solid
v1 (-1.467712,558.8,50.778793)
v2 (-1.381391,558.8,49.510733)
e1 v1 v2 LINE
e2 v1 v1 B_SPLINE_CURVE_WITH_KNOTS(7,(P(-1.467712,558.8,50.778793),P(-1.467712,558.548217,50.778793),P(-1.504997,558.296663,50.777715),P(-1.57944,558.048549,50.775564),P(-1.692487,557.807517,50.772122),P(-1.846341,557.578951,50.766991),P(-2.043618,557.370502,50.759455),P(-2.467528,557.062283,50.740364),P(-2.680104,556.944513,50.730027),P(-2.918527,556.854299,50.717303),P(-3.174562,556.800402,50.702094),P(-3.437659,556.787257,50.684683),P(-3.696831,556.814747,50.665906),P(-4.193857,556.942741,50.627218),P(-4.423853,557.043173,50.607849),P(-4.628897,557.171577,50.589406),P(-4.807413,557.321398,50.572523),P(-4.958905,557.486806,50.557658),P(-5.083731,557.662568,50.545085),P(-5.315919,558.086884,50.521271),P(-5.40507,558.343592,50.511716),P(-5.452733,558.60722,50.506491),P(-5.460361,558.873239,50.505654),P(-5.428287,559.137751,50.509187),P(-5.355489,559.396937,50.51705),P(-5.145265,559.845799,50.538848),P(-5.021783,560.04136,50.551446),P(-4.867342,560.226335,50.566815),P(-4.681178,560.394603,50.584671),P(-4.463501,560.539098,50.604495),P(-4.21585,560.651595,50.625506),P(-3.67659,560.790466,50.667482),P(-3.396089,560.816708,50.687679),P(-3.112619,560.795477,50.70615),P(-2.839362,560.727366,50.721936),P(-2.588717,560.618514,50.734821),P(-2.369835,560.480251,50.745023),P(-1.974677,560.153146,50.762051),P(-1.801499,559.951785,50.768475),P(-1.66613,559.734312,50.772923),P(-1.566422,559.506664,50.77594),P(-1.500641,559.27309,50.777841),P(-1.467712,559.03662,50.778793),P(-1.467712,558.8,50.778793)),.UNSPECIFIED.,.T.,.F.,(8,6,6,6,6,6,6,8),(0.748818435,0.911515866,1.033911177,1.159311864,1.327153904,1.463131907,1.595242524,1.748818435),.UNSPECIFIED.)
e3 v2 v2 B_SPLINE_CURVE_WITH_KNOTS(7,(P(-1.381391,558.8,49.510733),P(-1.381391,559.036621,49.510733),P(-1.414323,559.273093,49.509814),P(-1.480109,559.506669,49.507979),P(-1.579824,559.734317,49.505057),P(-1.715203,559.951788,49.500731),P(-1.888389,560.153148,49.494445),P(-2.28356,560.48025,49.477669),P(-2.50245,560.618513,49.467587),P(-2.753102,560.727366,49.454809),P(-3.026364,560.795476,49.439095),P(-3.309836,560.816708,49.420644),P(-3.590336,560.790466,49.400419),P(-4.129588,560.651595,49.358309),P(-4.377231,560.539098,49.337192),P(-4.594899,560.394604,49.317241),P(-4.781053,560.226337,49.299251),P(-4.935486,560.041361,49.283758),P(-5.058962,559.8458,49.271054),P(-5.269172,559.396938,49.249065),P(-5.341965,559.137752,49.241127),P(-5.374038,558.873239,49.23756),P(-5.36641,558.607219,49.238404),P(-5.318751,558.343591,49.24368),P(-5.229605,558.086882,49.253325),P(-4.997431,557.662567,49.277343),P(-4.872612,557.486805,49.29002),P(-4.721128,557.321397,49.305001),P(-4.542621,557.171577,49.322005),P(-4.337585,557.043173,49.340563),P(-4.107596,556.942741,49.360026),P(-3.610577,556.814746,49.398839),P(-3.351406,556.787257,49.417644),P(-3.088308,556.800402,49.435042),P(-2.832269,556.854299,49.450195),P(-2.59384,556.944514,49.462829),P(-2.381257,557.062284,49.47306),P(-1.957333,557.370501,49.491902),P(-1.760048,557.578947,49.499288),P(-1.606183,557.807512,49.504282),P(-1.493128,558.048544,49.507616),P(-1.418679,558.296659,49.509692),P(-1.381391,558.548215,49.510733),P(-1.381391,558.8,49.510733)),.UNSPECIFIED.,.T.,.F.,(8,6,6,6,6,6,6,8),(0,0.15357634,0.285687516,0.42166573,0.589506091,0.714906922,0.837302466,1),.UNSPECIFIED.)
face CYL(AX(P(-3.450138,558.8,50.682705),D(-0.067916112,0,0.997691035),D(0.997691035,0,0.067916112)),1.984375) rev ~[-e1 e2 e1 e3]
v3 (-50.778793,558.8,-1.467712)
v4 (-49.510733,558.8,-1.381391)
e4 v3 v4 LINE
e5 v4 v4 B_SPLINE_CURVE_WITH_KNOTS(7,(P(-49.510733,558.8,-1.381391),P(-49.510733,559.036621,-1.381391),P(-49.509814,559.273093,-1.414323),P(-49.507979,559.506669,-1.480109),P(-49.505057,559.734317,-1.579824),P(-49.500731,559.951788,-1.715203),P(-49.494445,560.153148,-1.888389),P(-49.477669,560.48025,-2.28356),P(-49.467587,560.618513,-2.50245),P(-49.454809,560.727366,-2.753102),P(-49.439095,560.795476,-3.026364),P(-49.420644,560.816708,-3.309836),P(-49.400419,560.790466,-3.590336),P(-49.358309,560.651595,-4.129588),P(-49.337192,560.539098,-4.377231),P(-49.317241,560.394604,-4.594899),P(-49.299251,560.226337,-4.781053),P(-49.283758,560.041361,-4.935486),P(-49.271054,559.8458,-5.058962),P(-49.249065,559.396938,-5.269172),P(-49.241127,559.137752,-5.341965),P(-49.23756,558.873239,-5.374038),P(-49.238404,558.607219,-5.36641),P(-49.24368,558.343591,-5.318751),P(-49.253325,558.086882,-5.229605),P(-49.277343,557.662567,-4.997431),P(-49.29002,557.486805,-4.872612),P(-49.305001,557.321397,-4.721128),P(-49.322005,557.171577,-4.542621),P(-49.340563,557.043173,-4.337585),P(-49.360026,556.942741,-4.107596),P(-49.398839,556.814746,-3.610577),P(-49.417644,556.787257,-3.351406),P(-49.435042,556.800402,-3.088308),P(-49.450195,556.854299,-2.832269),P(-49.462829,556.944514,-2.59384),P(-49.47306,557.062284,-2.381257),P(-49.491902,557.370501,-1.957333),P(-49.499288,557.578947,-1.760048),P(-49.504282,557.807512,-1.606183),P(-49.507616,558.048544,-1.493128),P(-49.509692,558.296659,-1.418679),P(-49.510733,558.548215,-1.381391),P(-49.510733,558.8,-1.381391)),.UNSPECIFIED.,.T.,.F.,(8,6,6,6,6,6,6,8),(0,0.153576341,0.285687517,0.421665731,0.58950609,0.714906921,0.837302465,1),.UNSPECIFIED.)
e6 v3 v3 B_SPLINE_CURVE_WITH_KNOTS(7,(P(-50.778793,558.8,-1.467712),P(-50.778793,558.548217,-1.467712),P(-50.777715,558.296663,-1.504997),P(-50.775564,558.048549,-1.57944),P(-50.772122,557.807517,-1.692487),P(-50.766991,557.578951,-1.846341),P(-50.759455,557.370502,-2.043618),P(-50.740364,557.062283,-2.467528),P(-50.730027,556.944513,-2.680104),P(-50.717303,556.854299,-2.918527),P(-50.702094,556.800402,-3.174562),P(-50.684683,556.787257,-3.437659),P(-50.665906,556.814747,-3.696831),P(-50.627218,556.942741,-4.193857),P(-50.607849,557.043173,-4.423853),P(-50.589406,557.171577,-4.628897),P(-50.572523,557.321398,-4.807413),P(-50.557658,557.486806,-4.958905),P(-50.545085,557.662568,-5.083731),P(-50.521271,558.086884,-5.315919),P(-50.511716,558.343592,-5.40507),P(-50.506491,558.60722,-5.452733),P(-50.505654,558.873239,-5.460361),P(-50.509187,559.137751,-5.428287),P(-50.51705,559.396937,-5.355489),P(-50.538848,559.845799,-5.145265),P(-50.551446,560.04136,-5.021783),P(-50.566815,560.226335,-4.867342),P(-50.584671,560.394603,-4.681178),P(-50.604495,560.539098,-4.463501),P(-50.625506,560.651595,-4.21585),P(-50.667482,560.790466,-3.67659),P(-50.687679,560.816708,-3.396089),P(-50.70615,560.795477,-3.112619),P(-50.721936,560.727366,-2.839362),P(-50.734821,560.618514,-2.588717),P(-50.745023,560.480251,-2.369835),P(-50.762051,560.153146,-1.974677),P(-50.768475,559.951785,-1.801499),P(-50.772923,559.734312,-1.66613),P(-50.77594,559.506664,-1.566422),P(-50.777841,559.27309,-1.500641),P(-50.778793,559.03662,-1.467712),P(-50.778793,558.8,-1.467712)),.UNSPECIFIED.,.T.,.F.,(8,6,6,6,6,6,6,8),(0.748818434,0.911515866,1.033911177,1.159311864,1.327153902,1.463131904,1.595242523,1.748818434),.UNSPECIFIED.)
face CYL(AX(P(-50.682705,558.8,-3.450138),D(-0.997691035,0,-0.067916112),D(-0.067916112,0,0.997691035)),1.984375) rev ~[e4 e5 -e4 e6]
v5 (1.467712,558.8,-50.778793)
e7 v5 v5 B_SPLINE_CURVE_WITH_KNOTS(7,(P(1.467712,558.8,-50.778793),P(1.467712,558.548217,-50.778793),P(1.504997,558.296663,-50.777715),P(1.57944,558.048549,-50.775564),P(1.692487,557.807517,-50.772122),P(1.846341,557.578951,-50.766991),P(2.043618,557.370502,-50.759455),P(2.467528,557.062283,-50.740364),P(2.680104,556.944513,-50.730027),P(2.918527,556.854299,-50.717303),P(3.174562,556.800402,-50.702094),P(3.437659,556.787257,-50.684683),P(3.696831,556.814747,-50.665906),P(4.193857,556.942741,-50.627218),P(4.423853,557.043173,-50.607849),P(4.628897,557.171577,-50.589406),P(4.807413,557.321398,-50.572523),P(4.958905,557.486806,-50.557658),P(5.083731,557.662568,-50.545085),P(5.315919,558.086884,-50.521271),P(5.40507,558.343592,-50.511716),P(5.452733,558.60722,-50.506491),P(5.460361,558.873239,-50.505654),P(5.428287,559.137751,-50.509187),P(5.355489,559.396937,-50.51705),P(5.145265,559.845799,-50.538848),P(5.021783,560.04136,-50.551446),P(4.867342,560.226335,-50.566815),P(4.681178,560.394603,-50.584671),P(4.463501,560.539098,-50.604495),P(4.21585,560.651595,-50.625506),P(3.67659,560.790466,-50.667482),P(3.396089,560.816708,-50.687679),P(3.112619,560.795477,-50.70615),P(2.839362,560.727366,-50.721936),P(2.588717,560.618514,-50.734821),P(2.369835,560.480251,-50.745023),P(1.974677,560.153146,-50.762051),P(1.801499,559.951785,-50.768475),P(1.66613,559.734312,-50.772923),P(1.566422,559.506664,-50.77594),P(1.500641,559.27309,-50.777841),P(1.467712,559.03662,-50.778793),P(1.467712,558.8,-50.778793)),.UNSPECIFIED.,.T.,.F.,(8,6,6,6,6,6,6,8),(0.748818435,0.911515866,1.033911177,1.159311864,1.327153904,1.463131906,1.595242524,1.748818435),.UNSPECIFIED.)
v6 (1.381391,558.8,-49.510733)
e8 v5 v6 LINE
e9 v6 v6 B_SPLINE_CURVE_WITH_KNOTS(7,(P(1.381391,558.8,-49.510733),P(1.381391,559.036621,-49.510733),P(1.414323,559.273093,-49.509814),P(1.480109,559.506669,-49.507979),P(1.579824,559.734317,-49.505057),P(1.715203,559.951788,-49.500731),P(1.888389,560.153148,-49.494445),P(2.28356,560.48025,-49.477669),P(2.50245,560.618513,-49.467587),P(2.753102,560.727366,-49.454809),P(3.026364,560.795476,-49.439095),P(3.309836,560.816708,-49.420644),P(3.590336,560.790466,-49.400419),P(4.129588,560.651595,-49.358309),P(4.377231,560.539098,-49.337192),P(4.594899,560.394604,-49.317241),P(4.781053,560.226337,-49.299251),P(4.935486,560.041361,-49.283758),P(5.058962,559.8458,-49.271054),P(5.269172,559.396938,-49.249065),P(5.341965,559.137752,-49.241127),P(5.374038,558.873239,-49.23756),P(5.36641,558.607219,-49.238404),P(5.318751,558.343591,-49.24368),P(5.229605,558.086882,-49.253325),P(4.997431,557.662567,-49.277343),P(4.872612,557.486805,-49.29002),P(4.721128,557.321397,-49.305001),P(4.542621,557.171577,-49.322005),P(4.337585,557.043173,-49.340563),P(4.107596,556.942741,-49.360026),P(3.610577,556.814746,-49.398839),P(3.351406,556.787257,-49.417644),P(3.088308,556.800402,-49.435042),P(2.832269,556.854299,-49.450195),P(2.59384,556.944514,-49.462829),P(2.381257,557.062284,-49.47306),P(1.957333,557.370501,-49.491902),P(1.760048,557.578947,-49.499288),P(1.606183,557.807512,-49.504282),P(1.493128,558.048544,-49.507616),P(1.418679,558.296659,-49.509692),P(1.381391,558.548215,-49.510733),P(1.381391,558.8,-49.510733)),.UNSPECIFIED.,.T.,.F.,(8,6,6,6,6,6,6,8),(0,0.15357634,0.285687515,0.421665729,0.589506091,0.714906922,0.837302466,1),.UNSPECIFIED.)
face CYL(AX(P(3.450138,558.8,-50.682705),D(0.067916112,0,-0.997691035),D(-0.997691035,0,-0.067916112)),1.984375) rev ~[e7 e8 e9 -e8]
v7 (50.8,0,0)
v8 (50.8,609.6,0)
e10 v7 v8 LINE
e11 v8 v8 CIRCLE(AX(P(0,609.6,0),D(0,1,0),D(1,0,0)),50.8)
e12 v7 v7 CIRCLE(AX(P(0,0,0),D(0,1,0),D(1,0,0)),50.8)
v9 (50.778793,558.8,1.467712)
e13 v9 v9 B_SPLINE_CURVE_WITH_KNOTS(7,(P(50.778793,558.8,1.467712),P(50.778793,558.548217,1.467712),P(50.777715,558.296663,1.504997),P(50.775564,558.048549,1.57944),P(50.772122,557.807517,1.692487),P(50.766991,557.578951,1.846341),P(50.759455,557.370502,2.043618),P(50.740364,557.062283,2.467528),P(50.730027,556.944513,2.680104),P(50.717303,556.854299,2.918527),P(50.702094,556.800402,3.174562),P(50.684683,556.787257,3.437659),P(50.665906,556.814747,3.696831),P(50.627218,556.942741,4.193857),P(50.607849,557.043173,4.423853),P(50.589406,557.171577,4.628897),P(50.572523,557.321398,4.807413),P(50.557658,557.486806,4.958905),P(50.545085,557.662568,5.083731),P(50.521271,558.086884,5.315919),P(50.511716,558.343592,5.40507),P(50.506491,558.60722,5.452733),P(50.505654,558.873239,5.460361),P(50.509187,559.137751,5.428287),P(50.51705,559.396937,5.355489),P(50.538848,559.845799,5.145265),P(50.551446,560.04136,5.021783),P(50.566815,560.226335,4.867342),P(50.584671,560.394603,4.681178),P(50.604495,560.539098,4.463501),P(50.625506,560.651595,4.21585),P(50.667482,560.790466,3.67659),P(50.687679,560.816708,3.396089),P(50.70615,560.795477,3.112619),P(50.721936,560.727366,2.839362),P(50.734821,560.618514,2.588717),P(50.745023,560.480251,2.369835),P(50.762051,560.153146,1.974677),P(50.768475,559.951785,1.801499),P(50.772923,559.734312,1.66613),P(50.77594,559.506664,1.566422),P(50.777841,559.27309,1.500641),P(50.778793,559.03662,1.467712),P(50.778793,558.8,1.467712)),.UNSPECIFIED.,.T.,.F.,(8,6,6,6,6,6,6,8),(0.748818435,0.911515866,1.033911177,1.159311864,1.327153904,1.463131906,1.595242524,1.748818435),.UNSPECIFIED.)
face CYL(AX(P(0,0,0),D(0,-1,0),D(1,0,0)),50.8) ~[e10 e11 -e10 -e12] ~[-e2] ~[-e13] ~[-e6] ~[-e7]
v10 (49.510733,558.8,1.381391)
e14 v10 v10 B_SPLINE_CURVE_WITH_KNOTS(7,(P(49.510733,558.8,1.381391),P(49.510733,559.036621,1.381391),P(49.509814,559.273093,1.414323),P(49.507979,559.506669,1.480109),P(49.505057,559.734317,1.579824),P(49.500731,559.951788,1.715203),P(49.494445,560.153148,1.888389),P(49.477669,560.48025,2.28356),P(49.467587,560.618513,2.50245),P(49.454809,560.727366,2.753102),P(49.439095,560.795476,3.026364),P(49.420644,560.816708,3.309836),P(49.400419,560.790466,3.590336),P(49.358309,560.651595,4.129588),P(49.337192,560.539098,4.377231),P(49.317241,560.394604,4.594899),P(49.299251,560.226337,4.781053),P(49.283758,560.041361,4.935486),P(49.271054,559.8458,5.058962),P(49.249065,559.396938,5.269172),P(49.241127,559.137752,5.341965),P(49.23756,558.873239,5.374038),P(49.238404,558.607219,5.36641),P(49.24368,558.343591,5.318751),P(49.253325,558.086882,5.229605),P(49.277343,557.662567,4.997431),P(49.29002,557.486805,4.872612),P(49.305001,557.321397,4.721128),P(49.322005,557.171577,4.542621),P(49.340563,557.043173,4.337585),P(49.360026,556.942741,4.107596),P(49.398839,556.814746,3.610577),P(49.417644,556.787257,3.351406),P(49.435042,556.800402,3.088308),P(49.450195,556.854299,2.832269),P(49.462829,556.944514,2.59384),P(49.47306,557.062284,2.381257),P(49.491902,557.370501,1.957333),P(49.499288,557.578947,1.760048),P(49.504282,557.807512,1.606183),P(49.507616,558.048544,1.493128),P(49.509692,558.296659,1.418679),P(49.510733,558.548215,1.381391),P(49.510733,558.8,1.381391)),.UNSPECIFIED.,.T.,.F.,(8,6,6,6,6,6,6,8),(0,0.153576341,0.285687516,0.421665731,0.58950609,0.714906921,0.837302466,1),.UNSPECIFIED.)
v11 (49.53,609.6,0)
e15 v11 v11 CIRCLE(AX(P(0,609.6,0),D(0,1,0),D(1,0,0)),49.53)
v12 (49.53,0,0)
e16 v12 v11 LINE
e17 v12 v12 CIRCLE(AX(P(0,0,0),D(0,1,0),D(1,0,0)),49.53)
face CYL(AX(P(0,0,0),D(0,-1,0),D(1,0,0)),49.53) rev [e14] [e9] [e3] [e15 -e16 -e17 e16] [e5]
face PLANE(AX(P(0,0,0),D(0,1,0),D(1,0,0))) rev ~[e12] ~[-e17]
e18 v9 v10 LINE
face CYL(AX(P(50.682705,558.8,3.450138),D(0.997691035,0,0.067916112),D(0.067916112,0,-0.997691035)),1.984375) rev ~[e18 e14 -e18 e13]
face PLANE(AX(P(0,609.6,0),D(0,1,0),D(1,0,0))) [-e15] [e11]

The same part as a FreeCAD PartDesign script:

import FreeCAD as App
import Part
import Sketcher
Q = App.Units.Quantity

doc = App.newDocument("Part")
body = doc.addObject("PartDesign::Body", "Body")

# Sketch on XZ plane
sketch1 = body.newObject("Sketcher::SketchObject", "Sketch")
sketch1.AttachmentSupport = (doc.getObject("XZ_Plane"), [""])
sketch1.MapMode = "FlatFace"
sketch1.addGeometry([
    Part.Circle(App.Vector(0, 0, 0), App.Vector(0, 0, 1), 50.8),
    Part.Circle(App.Vector(0, 0, 0), App.Vector(0, 0, 1), 49.53),
], False)
sketch1.addConstraint([
    Sketcher.Constraint("Coincident", 0, 3, -1, 1),
    Sketcher.Constraint("Coincident", 1, 3, -1, 1),
    Sketcher.Constraint("Diameter", 0, Q("4 in")),
    Sketcher.Constraint("Diameter", 1, Q("3.9 in")),
])
pad1 = body.newObject("PartDesign::Pad", "Pad")
pad1.Profile = sketch1
pad1.Length = Q("24 in")
pad1.Reversed = True

# Sketch on an angled plane
sketch2 = body.newObject("Sketcher::SketchObject", "Sketch001")
sketch2.Placement = App.Placement(App.Vector(122.899951, 815.595372, -42.551363), App.Rotation(App.Vector(-0.997691035, 0, -0.067916112), App.Vector(0, 1, 0), App.Vector(0.067916112, 0, -0.997691035), "ZXY"))
sketch2.addGeometry(Part.Circle(App.Vector(119.726256, -256.795371, 0), App.Vector(0, 0, 1), 1.984375), False)
sketch2.addConstraint([
    Sketcher.Constraint("Diameter", 0, Q("0.15625 in")),
    Sketcher.Constraint("DistanceY", 0, 3, -1, 1, Q("256.795371 mm")),
    Sketcher.Constraint("DistanceX", -1, 1, 0, 3, Q("119.726256 mm")),
])
pocket1 = body.newObject("PartDesign::Pocket", "Pocket")
pocket1.Profile = sketch2
pocket1.Length = Q("0.5 in")
doc.recompute()

polarpattern = body.newObject("PartDesign::PolarPattern", "PolarPattern")
polarpattern.Originals = [pocket1]
polarpattern.Axis = (doc.getObject("Y_Axis"), [""])
polarpattern.Angle = 360
polarpattern.Occurrences = 4
body.Tip = polarpattern

doc.recompute()
